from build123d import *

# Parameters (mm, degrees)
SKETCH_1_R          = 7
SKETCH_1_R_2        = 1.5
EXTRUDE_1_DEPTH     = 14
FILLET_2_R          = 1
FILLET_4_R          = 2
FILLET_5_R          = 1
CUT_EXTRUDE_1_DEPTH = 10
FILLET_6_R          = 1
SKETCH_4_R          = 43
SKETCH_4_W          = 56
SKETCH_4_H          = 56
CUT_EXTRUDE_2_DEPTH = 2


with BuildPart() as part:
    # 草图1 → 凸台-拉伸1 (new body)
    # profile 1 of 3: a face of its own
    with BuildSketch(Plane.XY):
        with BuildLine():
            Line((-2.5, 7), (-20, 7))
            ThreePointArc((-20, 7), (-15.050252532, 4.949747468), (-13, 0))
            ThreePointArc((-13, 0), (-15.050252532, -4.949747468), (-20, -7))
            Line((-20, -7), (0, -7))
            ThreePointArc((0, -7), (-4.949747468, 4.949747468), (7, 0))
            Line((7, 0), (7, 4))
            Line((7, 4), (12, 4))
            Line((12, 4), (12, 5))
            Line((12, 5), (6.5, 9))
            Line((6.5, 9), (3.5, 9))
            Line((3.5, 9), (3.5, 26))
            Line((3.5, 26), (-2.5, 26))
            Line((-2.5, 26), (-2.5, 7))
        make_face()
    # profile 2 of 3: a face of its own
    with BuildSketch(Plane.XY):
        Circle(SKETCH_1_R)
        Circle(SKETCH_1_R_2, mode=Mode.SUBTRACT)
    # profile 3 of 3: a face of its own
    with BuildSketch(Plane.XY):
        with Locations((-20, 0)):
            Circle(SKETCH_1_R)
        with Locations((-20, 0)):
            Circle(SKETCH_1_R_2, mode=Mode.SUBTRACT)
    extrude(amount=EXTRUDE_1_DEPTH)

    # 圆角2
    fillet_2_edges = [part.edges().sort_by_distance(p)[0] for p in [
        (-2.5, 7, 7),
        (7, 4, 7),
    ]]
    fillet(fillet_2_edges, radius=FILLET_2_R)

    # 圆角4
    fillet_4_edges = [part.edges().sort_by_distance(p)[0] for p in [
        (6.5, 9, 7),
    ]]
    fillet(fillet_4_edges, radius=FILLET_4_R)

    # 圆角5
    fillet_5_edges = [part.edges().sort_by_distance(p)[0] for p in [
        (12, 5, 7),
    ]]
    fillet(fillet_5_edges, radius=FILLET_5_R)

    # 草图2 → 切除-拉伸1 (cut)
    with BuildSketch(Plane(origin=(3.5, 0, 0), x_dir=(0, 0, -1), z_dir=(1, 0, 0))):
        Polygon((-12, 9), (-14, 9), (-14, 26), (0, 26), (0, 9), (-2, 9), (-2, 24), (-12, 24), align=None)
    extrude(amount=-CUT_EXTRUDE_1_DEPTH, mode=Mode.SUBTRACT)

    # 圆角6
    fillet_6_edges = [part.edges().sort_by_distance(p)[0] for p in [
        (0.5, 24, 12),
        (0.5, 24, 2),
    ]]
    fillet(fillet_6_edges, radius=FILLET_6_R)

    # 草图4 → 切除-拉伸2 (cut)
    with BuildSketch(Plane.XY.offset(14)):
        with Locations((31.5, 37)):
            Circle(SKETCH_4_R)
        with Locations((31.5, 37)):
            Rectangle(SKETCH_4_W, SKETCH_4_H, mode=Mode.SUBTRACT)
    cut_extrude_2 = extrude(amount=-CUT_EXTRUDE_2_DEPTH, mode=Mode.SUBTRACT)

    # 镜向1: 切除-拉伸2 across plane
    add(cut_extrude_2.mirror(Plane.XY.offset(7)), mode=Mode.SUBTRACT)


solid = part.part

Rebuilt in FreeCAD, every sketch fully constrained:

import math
import FreeCAD as App
import Part
import Sketcher

V = App.Vector


def edges_at(feature, points):
    """Names of the edges that pass closest to the given points."""
    edges = feature.Shape.Edges
    near = lambda p: min(range(len(edges)), key=lambda i: edges[i].distToShape(Part.Vertex(*p))[0])
    return sorted({f"Edge{near(p) + 1}" for p in points})

doc = App.newDocument("Part")
body = doc.addObject("PartDesign::Body", "Body")

# Sketch on XY plane
sketch1 = body.newObject("Sketcher::SketchObject", "Sketch")
sketch1.AttachmentSupport = (doc.getObject("XY_Plane"), [""])
sketch1.MapMode = "FlatFace"
sketch1.addGeometry([
    Part.LineSegment(V(-2.5, 7, 0), V(-20, 7, 0)),  # 0
    Part.ArcOfCircle(Part.Circle(V(-20, 0, 0), V(0, 0, 1), 7), math.radians(90), math.radians(270)),  # 1
    Part.LineSegment(V(-20, -7, 0), V(0, -7, 0)),  # 2
    Part.ArcOfCircle(Part.Circle(V(0, 0, 0), V(0, 0, 1), 7), math.radians(-90), math.radians(0)),  # 3
    Part.LineSegment(V(7, 0, 0), V(7, 4, 0)),  # 4
    Part.LineSegment(V(7, 4, 0), V(12, 4, 0)),  # 5
    Part.LineSegment(V(12, 4, 0), V(12, 5, 0)),  # 6
    Part.LineSegment(V(12, 5, 0), V(6.5, 9, 0)),  # 7
    Part.LineSegment(V(6.5, 9, 0), V(3.5, 9, 0)),  # 8
    Part.LineSegment(V(3.5, 9, 0), V(3.5, 26, 0)),  # 9
    Part.LineSegment(V(3.5, 26, 0), V(-2.5, 26, 0)),  # 10
    Part.LineSegment(V(-2.5, 26, 0), V(-2.5, 7, 0)),  # 11
    Part.Circle(V(-20, 0, 0), V(0, 0, 1), 1.5),  # 12
    Part.Circle(V(0, 0, 0), V(0, 0, 1), 1.5),  # 13
], False)
sketch1.addConstraint([
    Sketcher.Constraint("Tangent", 0, 2, 1, 1),
    Sketcher.Constraint("Tangent", 1, 2, 2, 1),
    Sketcher.Constraint("Tangent", 2, 2, 3, 1),
    Sketcher.Constraint("Tangent", 3, 2, 4, 1),
    Sketcher.Constraint("Coincident", 4, 2, 5, 1),
    Sketcher.Constraint("Coincident", 5, 2, 6, 1),
    Sketcher.Constraint("Coincident", 6, 2, 7, 1),
    Sketcher.Constraint("Coincident", 7, 2, 8, 1),
    Sketcher.Constraint("Coincident", 8, 2, 9, 1),
    Sketcher.Constraint("Coincident", 9, 2, 10, 1),
    Sketcher.Constraint("Coincident", 10, 2, 11, 1),
    Sketcher.Constraint("Coincident", 11, 2, 0, 1),
    Sketcher.Constraint("Horizontal", 0),
    Sketcher.Constraint("Horizontal", 2),
    Sketcher.Constraint("Vertical", 4),
    Sketcher.Constraint("Horizontal", 5),
    Sketcher.Constraint("Vertical", 6),
    Sketcher.Constraint("Horizontal", 8),
    Sketcher.Constraint("Vertical", 9),
    Sketcher.Constraint("Horizontal", 10),
    Sketcher.Constraint("Vertical", 11),
    Sketcher.Constraint("Coincident", 3, 3, -1, 1),
    Sketcher.Constraint("Coincident", 13, 3, -1, 1),
    Sketcher.Constraint("Coincident", 12, 3, 1, 3),
    Sketcher.Constraint("Equal", 1, 3),
    Sketcher.Constraint("Equal", 12, 13),
    Sketcher.Constraint("Diameter", 12, 3.0),
    Sketcher.Constraint("Radius", 1, 7.0),
    Sketcher.Constraint("DistanceX", 2, 1, 2, 2, 20.0),
    Sketcher.Constraint("DistanceX", 5, 1, 5, 2, 5.0),
    Sketcher.Constraint("DistanceX", 8, 2, 8, 1, 3.0),
    Sketcher.Constraint("DistanceX", 10, 2, 10, 1, 6.0),
    Sketcher.Constraint("DistanceY", 4, 1, 4, 2, 4.0),
    Sketcher.Constraint("DistanceY", 6, 1, 6, 2, 1.0),
    Sketcher.Constraint("DistanceY", 9, 1, 9, 2, 17.0),
    Sketcher.Constraint("DistanceY", 11, 2, 11, 1, 19.0),
    Sketcher.Constraint("DistanceX", 0, 2, 0, 1, 17.5),
])
pad1 = body.newObject("PartDesign::Pad", "Pad")
pad1.Profile = sketch1
pad1.Length = 14
doc.recompute()

fillet = body.newObject("PartDesign::Fillet", "Fillet")
fillet.Base = (pad1, edges_at(pad1, [(-2.5, 7, 7), (7, 4, 7)]))
fillet.Radius = 1
doc.recompute()

fillet2 = body.newObject("PartDesign::Fillet", "Fillet001")
fillet2.Base = (fillet, edges_at(fillet, [(6.5, 9, 7)]))
fillet2.Radius = 2
doc.recompute()

fillet3 = body.newObject("PartDesign::Fillet", "Fillet002")
fillet3.Base = (fillet2, edges_at(fillet2, [(12, 5, 7)]))
fillet3.Radius = 1

# Sketch on YZ plane
sketch2 = body.newObject("Sketcher::SketchObject", "Sketch001")
sketch2.AttachmentSupport = (doc.getObject("YZ_Plane"), [""])
sketch2.MapMode = "FlatFace"
sketch2.AttachmentOffset = App.Placement(V(0, 0, 3.5), App.Rotation())
sketch2.addGeometry([
    Part.LineSegment(V(9, 14, 0), V(9, 12, 0)),  # 0
    Part.LineSegment(V(9, 12, 0), V(24, 12, 0)),  # 1
    Part.LineSegment(V(24, 12, 0), V(24, 2, 0)),  # 2
    Part.LineSegment(V(24, 2, 0), V(9, 2, 0)),  # 3
    Part.LineSegment(V(9, 2, 0), V(9, 0, 0)),  # 4
    Part.LineSegment(V(9, 0, 0), V(26, 0, 0)),  # 5
    Part.LineSegment(V(26, 0, 0), V(26, 14, 0)),  # 6
    Part.LineSegment(V(26, 14, 0), V(9, 14, 0)),  # 7
], False)
sketch2.addConstraint([
    Sketcher.Constraint("Coincident", 0, 2, 1, 1),
    Sketcher.Constraint("Coincident", 1, 2, 2, 1),
    Sketcher.Constraint("Coincident", 2, 2, 3, 1),
    Sketcher.Constraint("Coincident", 3, 2, 4, 1),
    Sketcher.Constraint("Coincident", 4, 2, 5, 1),
    Sketcher.Constraint("Coincident", 5, 2, 6, 1),
    Sketcher.Constraint("Coincident", 6, 2, 7, 1),
    Sketcher.Constraint("Coincident", 7, 2, 0, 1),
    Sketcher.Constraint("Vertical", 0),
    Sketcher.Constraint("Horizontal", 1),
    Sketcher.Constraint("Vertical", 2),
    Sketcher.Constraint("Horizontal", 3),
    Sketcher.Constraint("Vertical", 4),
    Sketcher.Constraint("Horizontal", 5),
    Sketcher.Constraint("Vertical", 6),
    Sketcher.Constraint("Horizontal", 7),
    Sketcher.Constraint("PointOnObject", 4, 2, -1),
    Sketcher.Constraint("Vertical", 0, 2, 3, 2),
    Sketcher.Constraint("Equal", 0, 4),
    Sketcher.Constraint("DistanceX", 1, 1, 1, 2, 15.0),
    Sketcher.Constraint("DistanceX", 5, 1, 5, 2, 17.0),
    Sketcher.Constraint("DistanceY", 0, 2, 0, 1, 2.0),
    Sketcher.Constraint("DistanceY", 2, 2, 2, 1, 10.0),
    Sketcher.Constraint("DistanceX", -1, 1, 0, 2, 9.0),
])
pocket1 = body.newObject("PartDesign::Pocket", "Pocket")
pocket1.Profile = sketch2
pocket1.Length = 10
doc.recompute()

fillet4 = body.newObject("PartDesign::Fillet", "Fillet003")
fillet4.Base = (pocket1, edges_at(pocket1, [(0.5, 24, 12), (0.5, 24, 2)]))
fillet4.Radius = 1

# Sketch on XY plane
sketch3 = body.newObject("Sketcher::SketchObject", "Sketch002")
sketch3.AttachmentSupport = (doc.getObject("XY_Plane"), [""])
sketch3.MapMode = "FlatFace"
sketch3.AttachmentOffset = App.Placement(V(0, 0, 14), App.Rotation())
sketch3.addGeometry([
    Part.Circle(V(32, 37, 0), V(0, 0, 1), 43),  # 0
    Part.LineSegment(V(60, 9, 0), V(4, 9, 0)),  # 1
    Part.LineSegment(V(4, 9, 0), V(4, 65, 0)),  # 2
    Part.LineSegment(V(4, 65, 0), V(60, 65, 0)),  # 3
    Part.LineSegment(V(60, 65, 0), V(60, 9, 0)),  # 4
], False)
sketch3.addConstraint([
    Sketcher.Constraint("Coincident", 1, 2, 2, 1),
    Sketcher.Constraint("Coincident", 2, 2, 3, 1),
    Sketcher.Constraint("Coincident", 3, 2, 4, 1),
    Sketcher.Constraint("Coincident", 4, 2, 1, 1),
    Sketcher.Constraint("Horizontal", 1),
    Sketcher.Constraint("Vertical", 2),
    Sketcher.Constraint("Horizontal", 3),
    Sketcher.Constraint("Vertical", 4),
    Sketcher.Constraint("Equal", 3, 2),
    Sketcher.Constraint("Diameter", 0, 86.0),
    Sketcher.Constraint("DistanceX", 1, 2, 1, 1, 56.0),
    Sketcher.Constraint("DistanceY", -1, 1, 0, 3, 37.0),
    Sketcher.Constraint("DistanceY", -1, 1, 1, 2, 9.0),
    Sketcher.Constraint("DistanceX", 1, 2, 0, 3, 28.0),
    Sketcher.Constraint("DistanceX", -1, 1, 0, 3, 31.5),
])
pocket2 = body.newObject("PartDesign::Pocket", "Pocket001")
pocket2.Profile = sketch3
pocket2.Length = 2
doc.recompute()

datumplane = body.newObject("PartDesign::Plane", "DatumPlane")
datumplane.AttachmentSupport = (doc.getObject("XY_Plane"), [""])
datumplane.MapMode = "FlatFace"
datumplane.AttachmentOffset = App.Placement(V(0, 0, 7), App.Rotation())
mirrored = body.newObject("PartDesign::Mirrored", "Mirrored")
mirrored.Originals = [pocket2]
mirrored.MirrorPlane = (datumplane, [""])
body.Tip = mirrored

doc.recompute()
